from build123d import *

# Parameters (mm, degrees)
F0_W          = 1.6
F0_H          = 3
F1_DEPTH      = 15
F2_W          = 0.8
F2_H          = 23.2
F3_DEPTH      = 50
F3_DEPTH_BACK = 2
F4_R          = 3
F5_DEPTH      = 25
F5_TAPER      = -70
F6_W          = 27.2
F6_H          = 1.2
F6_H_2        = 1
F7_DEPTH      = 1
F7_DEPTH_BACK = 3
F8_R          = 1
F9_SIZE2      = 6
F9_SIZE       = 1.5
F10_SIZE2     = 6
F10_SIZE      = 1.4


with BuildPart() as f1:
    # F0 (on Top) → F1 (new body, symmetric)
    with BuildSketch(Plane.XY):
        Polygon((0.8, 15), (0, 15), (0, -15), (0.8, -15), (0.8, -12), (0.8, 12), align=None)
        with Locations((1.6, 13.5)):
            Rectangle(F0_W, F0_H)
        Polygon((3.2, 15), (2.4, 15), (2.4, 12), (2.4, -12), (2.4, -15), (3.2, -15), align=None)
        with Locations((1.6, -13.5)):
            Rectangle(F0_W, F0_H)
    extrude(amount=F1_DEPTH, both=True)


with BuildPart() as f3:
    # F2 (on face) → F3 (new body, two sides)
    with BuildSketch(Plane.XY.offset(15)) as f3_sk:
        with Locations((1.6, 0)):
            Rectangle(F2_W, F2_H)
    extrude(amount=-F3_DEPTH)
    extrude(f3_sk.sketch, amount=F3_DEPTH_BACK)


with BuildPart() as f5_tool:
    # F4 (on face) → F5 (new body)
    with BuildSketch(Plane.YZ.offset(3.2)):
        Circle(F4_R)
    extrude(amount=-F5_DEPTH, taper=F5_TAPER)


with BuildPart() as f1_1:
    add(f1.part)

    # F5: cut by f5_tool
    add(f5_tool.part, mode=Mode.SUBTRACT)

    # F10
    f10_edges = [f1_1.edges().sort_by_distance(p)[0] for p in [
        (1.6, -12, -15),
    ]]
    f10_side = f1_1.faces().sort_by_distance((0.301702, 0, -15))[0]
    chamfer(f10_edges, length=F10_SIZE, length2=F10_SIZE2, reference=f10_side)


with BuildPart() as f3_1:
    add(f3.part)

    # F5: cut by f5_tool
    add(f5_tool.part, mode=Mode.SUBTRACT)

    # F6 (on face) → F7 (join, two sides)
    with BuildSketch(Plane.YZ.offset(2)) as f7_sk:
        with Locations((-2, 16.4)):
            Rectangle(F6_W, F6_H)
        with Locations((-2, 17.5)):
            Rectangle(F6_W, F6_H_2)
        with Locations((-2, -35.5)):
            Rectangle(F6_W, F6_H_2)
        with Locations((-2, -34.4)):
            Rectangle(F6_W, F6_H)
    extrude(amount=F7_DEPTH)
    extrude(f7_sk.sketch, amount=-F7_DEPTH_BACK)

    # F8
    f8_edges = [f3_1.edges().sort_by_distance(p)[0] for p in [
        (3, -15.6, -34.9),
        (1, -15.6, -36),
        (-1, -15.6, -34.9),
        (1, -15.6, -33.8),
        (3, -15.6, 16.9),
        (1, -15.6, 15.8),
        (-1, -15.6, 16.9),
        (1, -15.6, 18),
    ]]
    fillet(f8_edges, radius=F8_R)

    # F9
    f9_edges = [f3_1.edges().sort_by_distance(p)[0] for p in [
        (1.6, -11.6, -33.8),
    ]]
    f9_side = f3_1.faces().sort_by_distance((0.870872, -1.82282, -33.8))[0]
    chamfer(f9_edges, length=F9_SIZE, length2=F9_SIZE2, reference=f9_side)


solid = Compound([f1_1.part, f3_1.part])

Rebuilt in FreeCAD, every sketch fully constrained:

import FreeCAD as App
import Part
import Sketcher
Q = App.Units.Quantity


def edges_at(feature, points):
    """Names of the edges that pass closest to the given points."""
    edges = feature.Shape.Edges
    near = lambda p: min(range(len(edges)), key=lambda i: edges[i].distToShape(Part.Vertex(*p))[0])
    return sorted({f"Edge{near(p) + 1}" for p in points})

doc = App.newDocument("Part")
params = doc.addObject("Spreadsheet::Sheet", "Params")
for row, (alias, value) in enumerate([
    ("sketch1_height", "30 mm"),
    ("sketch1_height2", "24 mm"),
    ("sketch1_width", "3.2 mm"),
    ("sketch1_width2", "1.6 mm"),
    ("pad1_length", "30 mm"),
    ("sketch2_width", "0.8 mm"),
    ("sketch2_height", "23.2 mm"),
    ("pad2_length", "50 mm"),
    ("pad2_length2", "2 mm"),
    ("sketch3_diameter", "6 mm"),
    ("pad3_length", "25 mm"),
    ("pad3_taper", "70 deg"),
    ("chamfer_size", "1.4 mm"),
    ("chamfer_size2", "6 mm"),
    ("sketch4_width", "27.2 mm"),
    ("sketch4_height", "2.2 mm"),
    ("pad4_length", "1 mm"),
    ("pad4_length2", "3 mm"),
    ("fillet_radius", "1 mm"),
    ("chamfer2_size", "1.5 mm"),
    ("chamfer2_size2", "6 mm"),
], start=1):
    params.set(f"A{row}", alias)
    params.set(f"B{row}", "=" + value)
    params.setAlias(f"B{row}", alias)

body = doc.addObject("PartDesign::Body", "Body")

sketch1 = body.newObject("Sketcher::SketchObject", "Sketch")
sketch1.AttachmentSupport = (doc.getObject("XY_Plane"), [""])
sketch1.MapMode = "FlatFace"
sketch1.addGeometry(Part.LineSegment(App.Vector(0, 15, 0), App.Vector(0, -15, 0)), False)
sketch1.addGeometry(Part.LineSegment(App.Vector(0, -15, 0), App.Vector(3.2, -15, 0)), False)
sketch1.addGeometry(Part.LineSegment(App.Vector(3.2, -15, 0), App.Vector(3.2, 15, 0)), False)
sketch1.addGeometry(Part.LineSegment(App.Vector(3.2, 15, 0), App.Vector(0, 15, 0)), False)
sketch1.addGeometry(Part.LineSegment(App.Vector(0.8, -12, 0), App.Vector(0.8, 12, 0)), False)
sketch1.addGeometry(Part.LineSegment(App.Vector(0.8, 12, 0), App.Vector(2.4, 12, 0)), False)
sketch1.addGeometry(Part.LineSegment(App.Vector(2.4, 12, 0), App.Vector(2.4, -12, 0)), False)
sketch1.addGeometry(Part.LineSegment(App.Vector(2.4, -12, 0), App.Vector(0.8, -12, 0)), False)
sketch1.addConstraint(Sketcher.Constraint("Coincident", 0, 2, 1, 1))
sketch1.addConstraint(Sketcher.Constraint("Coincident", 1, 2, 2, 1))
sketch1.addConstraint(Sketcher.Constraint("Coincident", 2, 2, 3, 1))
sketch1.addConstraint(Sketcher.Constraint("Coincident", 3, 2, 0, 1))
sketch1.addConstraint(Sketcher.Constraint("Coincident", 4, 2, 5, 1))
sketch1.addConstraint(Sketcher.Constraint("Coincident", 5, 2, 6, 1))
sketch1.addConstraint(Sketcher.Constraint("Coincident", 6, 2, 7, 1))
sketch1.addConstraint(Sketcher.Constraint("Coincident", 7, 2, 4, 1))
sketch1.addConstraint(Sketcher.Constraint("Vertical", 0))
sketch1.addConstraint(Sketcher.Constraint("Horizontal", 1))
sketch1.addConstraint(Sketcher.Constraint("Vertical", 2))
sketch1.addConstraint(Sketcher.Constraint("Horizontal", 3))
sketch1.addConstraint(Sketcher.Constraint("Vertical", 4))
sketch1.addConstraint(Sketcher.Constraint("Horizontal", 5))
sketch1.addConstraint(Sketcher.Constraint("Vertical", 6))
sketch1.addConstraint(Sketcher.Constraint("Horizontal", 7))
sketch1.addConstraint(Sketcher.Constraint("Symmetric", 0, 2, 3, 2, -1, 1))
sketch1.addConstraint(Sketcher.Constraint("DistanceY", 0, 2, 0, 1, Q("30 mm")))
sketch1.addConstraint(Sketcher.Constraint("DistanceY", 4, 1, 4, 2, Q("24 mm")))
sketch1.addConstraint(Sketcher.Constraint("DistanceX", 1, 1, 1, 2, Q("3.2 mm")))
sketch1.addConstraint(Sketcher.Constraint("DistanceX", 5, 1, 5, 2, Q("1.6 mm")))
sketch1.addConstraint(Sketcher.Constraint("DistanceY", -1, 1, 4, 2, Q("12 mm")))
sketch1.addConstraint(Sketcher.Constraint("DistanceX", -1, 1, 4, 2, Q("0.8 mm")))
sketch1.setExpression("Constraints[17]", "Params.sketch1_height")
sketch1.setExpression("Constraints[18]", "Params.sketch1_height2")
sketch1.setExpression("Constraints[19]", "Params.sketch1_width")
sketch1.setExpression("Constraints[20]", "Params.sketch1_width2")
pad1 = body.newObject("PartDesign::Pad", "Pad")
pad1.Profile = sketch1
pad1.setExpression("Length", "Params.pad1_length")
pad1.Midplane = True
body2 = doc.addObject("PartDesign::Body", "Body001")

sketch2 = body2.newObject("Sketcher::SketchObject", "Sketch001")
sketch2.AttachmentSupport = (doc.getObject("XY_Plane001"), [""])
sketch2.MapMode = "FlatFace"
sketch2.AttachmentOffset = App.Placement(App.Vector(0, 0, 15), App.Rotation())
sketch2.addGeometry(Part.LineSegment(App.Vector(1.2, 11.6, 0), App.Vector(1.2, -11.6, 0)), False)
sketch2.addGeometry(Part.LineSegment(App.Vector(1.2, -11.6, 0), App.Vector(2, -11.6, 0)), False)
sketch2.addGeometry(Part.LineSegment(App.Vector(2, -11.6, 0), App.Vector(2, 11.6, 0)), False)
sketch2.addGeometry(Part.LineSegment(App.Vector(2, 11.6, 0), App.Vector(1.2, 11.6, 0)), False)
sketch2.addConstraint(Sketcher.Constraint("Coincident", 0, 2, 1, 1))
sketch2.addConstraint(Sketcher.Constraint("Coincident", 1, 2, 2, 1))
sketch2.addConstraint(Sketcher.Constraint("Coincident", 2, 2, 3, 1))
sketch2.addConstraint(Sketcher.Constraint("Coincident", 3, 2, 0, 1))
sketch2.addConstraint(Sketcher.Constraint("Vertical", 0))
sketch2.addConstraint(Sketcher.Constraint("Horizontal", 1))
sketch2.addConstraint(Sketcher.Constraint("Vertical", 2))
sketch2.addConstraint(Sketcher.Constraint("Horizontal", 3))
sketch2.addConstraint(Sketcher.Constraint("DistanceX", 1, 1, 1, 2, Q("0.8 mm")))
sketch2.addConstraint(Sketcher.Constraint("DistanceY", 0, 2, 0, 1, Q("23.2 mm")))
sketch2.addConstraint(Sketcher.Constraint("DistanceX", -1, 1, 1, 2, Q("2 mm")))
sketch2.addConstraint(Sketcher.Constraint("DistanceY", 0, 2, -1, 1, Q("11.6 mm")))
sketch2.setExpression("Constraints[8]", "Params.sketch2_width")
sketch2.setExpression("Constraints[9]", "Params.sketch2_height")
pad2 = body2.newObject("PartDesign::Pad", "Pad001")
pad2.Profile = sketch2
pad2.Type = "TwoLengths"
pad2.setExpression("Length", "Params.pad2_length")
pad2.setExpression("Length2", "Params.pad2_length2")
pad2.Reversed = True
body3 = doc.addObject("PartDesign::Body", "Body002")

sketch3 = body3.newObject("Sketcher::SketchObject", "Sketch002")
sketch3.AttachmentSupport = (doc.getObject("YZ_Plane002"), [""])
sketch3.MapMode = "FlatFace"
sketch3.AttachmentOffset = App.Placement(App.Vector(0, 0, 3.2), App.Rotation())
sketch3.addGeometry(Part.Circle(App.Vector(0, 0, 0), App.Vector(0, 0, 1), 3), False)
sketch3.addConstraint(Sketcher.Constraint("Coincident", 0, 3, -1, 1))
sketch3.addConstraint(Sketcher.Constraint("Diameter", 0, Q("6 mm")))
sketch3.setExpression("Constraints[1]", "Params.sketch3_diameter")
pad3 = body3.newObject("PartDesign::Pad", "Pad002")
pad3.Profile = sketch3
pad3.setExpression("Length", "Params.pad3_length")
pad3.Reversed = True
pad3.setExpression("TaperAngle", "Params.pad3_taper")
doc.recompute()

body4 = doc.addObject("PartDesign::Body", "Body003")
body4.BaseFeature = body3
boolean = body.newObject("PartDesign::Boolean", "Boolean")
boolean.Type = "Cut"
boolean.addObjects([body4])
doc.recompute()

chamfer = body.newObject("PartDesign::Chamfer", "Chamfer")
chamfer.Base = (boolean, edges_at(boolean, [(1.6, -12, -15)]))
chamfer.ChamferType = "Two distances"
chamfer.setExpression("Size", "Params.chamfer_size")
chamfer.setExpression("Size2", "Params.chamfer_size2")
doc.recompute()

boolean2 = body2.newObject("PartDesign::Boolean", "Boolean001")
boolean2.Type = "Cut"
boolean2.addObjects([body3])

sketch4 = body2.newObject("Sketcher::SketchObject", "Sketch003")
sketch4.AttachmentSupport = (doc.getObject("YZ_Plane001"), [""])
sketch4.MapMode = "FlatFace"
sketch4.AttachmentOffset = App.Placement(App.Vector(0, 0, 2), App.Rotation())
sketch4.addGeometry(Part.LineSegment(App.Vector(-15.6, 15.8, 0), App.Vector(11.6, 15.8, 0)), False)
sketch4.addGeometry(Part.LineSegment(App.Vector(11.6, 15.8, 0), App.Vector(11.6, 18, 0)), False)
sketch4.addGeometry(Part.LineSegment(App.Vector(11.6, 18, 0), App.Vector(-15.6, 18, 0)), False)
sketch4.addGeometry(Part.LineSegment(App.Vector(-15.6, 18, 0), App.Vector(-15.6, 15.8, 0)), False)
sketch4.addGeometry(Part.LineSegment(App.Vector(-15.6, -36, 0), App.Vector(11.6, -36, 0)), False)
sketch4.addGeometry(Part.LineSegment(App.Vector(11.6, -36, 0), App.Vector(11.6, -33.8, 0)), False)
sketch4.addGeometry(Part.LineSegment(App.Vector(11.6, -33.8, 0), App.Vector(-15.6, -33.8, 0)), False)
sketch4.addGeometry(Part.LineSegment(App.Vector(-15.6, -33.8, 0), App.Vector(-15.6, -36, 0)), False)
sketch4.addConstraint(Sketcher.Constraint("Coincident", 0, 2, 1, 1))
sketch4.addConstraint(Sketcher.Constraint("Coincident", 1, 2, 2, 1))
sketch4.addConstraint(Sketcher.Constraint("Coincident", 2, 2, 3, 1))
sketch4.addConstraint(Sketcher.Constraint("Coincident", 3, 2, 0, 1))
sketch4.addConstraint(Sketcher.Constraint("Coincident", 4, 2, 5, 1))
sketch4.addConstraint(Sketcher.Constraint("Coincident", 5, 2, 6, 1))
sketch4.addConstraint(Sketcher.Constraint("Coincident", 6, 2, 7, 1))
sketch4.addConstraint(Sketcher.Constraint("Coincident", 7, 2, 4, 1))
sketch4.addConstraint(Sketcher.Constraint("Horizontal", 0))
sketch4.addConstraint(Sketcher.Constraint("Vertical", 1))
sketch4.addConstraint(Sketcher.Constraint("Horizontal", 2))
sketch4.addConstraint(Sketcher.Constraint("Vertical", 3))
sketch4.addConstraint(Sketcher.Constraint("Horizontal", 4))
sketch4.addConstraint(Sketcher.Constraint("Vertical", 5))
sketch4.addConstraint(Sketcher.Constraint("Horizontal", 6))
sketch4.addConstraint(Sketcher.Constraint("Vertical", 7))
sketch4.addConstraint(Sketcher.Constraint("Vertical", 1, 2, 4, 2))
sketch4.addConstraint(Sketcher.Constraint("Vertical", 3, 2, 6, 2))
sketch4.addConstraint(Sketcher.Constraint("Equal", 3, 5))
sketch4.addConstraint(Sketcher.Constraint("DistanceX", 0, 1, 0, 2, Q("27.2 mm")))
sketch4.addConstraint(Sketcher.Constraint("DistanceY", 1, 1, 1, 2, Q("2.2 mm")))
sketch4.addConstraint(Sketcher.Constraint("DistanceY", -1, 1, 1, 2, Q("18 mm")))
sketch4.addConstraint(Sketcher.Constraint("DistanceY", 4, 2, -1, 1, Q("36 mm")))
sketch4.addConstraint(Sketcher.Constraint("DistanceX", -1, 1, 0, 2, Q("11.6 mm")))
sketch4.setExpression("Constraints[19]", "Params.sketch4_width")
sketch4.setExpression("Constraints[20]", "Params.sketch4_height")
pad4 = body2.newObject("PartDesign::Pad", "Pad003")
pad4.Profile = sketch4
pad4.Type = "TwoLengths"
pad4.setExpression("Length", "Params.pad4_length")
pad4.setExpression("Length2", "Params.pad4_length2")
doc.recompute()

fillet = body2.newObject("PartDesign::Fillet", "Fillet")
fillet.Base = (pad4, edges_at(pad4, [
    (3, -15.6, -34.9),
    (1, -15.6, -36),
    (-1, -15.6, -34.9),
    (1, -15.6, -33.8),
    (3, -15.6, 16.9),
    (1, -15.6, 15.8),
    (-1, -15.6, 16.9),
    (1, -15.6, 18),
]))
fillet.setExpression("Radius", "Params.fillet_radius")
doc.recompute()

chamfer2 = body2.newObject("PartDesign::Chamfer", "Chamfer001")
chamfer2.Base = (fillet, edges_at(fillet, [(1.6, -11.6, -33.8)]))
chamfer2.ChamferType = "Two distances"
chamfer2.setExpression("Size", "Params.chamfer2_size")
chamfer2.setExpression("Size2", "Params.chamfer2_size2")

doc.recompute()
